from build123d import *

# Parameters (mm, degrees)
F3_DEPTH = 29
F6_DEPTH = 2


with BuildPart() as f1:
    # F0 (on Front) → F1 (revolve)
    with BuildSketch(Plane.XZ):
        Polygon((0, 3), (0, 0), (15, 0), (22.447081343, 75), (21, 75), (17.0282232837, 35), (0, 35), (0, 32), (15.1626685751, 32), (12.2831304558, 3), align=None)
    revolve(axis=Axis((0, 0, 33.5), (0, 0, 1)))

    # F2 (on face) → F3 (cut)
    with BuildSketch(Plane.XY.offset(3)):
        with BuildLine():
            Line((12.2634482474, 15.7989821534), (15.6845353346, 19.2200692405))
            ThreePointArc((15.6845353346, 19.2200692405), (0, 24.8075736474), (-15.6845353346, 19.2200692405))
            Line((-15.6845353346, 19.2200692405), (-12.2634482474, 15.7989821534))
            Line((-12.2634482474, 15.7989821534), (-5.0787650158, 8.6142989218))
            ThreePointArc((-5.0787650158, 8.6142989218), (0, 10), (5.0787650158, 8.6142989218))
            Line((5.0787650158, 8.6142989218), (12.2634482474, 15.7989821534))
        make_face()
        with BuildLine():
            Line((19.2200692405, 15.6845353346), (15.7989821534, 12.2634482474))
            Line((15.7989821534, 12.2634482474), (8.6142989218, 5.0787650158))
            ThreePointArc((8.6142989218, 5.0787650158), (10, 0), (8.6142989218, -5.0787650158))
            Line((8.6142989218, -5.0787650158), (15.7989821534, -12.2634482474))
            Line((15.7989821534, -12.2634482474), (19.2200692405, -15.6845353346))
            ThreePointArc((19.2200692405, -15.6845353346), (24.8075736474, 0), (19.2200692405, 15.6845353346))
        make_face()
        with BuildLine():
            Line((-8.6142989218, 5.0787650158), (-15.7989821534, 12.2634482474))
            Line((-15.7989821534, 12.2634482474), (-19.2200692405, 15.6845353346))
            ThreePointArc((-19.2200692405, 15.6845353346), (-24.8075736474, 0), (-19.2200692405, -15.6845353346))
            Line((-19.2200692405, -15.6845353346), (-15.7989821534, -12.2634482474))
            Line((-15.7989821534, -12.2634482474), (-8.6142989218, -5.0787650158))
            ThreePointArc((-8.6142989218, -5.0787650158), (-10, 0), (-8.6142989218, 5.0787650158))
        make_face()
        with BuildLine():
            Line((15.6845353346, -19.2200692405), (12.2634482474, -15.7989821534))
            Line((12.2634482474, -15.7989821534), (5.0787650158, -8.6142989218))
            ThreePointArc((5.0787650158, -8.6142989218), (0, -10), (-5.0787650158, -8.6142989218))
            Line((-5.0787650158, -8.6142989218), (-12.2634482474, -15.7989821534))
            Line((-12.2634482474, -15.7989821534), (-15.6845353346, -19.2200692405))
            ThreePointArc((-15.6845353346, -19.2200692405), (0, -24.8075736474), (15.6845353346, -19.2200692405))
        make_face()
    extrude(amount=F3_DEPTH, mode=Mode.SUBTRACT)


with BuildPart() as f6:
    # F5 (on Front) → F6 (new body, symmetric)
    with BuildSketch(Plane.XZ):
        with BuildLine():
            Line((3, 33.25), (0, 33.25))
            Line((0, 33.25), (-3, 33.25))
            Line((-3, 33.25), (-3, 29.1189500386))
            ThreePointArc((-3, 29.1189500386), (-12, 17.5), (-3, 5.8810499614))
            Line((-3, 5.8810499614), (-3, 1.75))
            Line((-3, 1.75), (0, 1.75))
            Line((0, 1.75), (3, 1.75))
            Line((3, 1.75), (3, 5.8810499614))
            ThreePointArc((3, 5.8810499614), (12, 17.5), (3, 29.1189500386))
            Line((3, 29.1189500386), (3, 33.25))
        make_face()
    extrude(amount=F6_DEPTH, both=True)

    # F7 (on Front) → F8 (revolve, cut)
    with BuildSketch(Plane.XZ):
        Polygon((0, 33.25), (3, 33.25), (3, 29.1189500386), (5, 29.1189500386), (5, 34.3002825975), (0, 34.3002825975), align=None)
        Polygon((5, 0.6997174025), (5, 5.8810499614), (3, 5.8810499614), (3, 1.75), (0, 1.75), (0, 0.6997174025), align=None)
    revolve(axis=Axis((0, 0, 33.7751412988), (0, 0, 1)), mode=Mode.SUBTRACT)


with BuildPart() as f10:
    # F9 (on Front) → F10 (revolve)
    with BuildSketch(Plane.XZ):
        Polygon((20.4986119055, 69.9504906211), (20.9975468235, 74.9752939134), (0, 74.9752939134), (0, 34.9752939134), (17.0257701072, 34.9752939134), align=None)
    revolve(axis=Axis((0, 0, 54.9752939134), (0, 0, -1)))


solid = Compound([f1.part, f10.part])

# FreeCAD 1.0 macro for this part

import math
import FreeCAD as App
import Part
import Sketcher
from FreeCAD import Vector


def add_polygon(sketch, points):
    """Adds a closed chain of lines whose ends are joined by coincident constraints."""
    first, n = sketch.GeometryCount, len(points)
    for a, b in zip(points, points[1:] + points[:1]):
        sketch.addGeometry(Part.LineSegment(App.Vector(*a, 0), App.Vector(*b, 0)), False)
    for i in range(n):
        sketch.addConstraint(Sketcher.Constraint("Coincident", first + i, 2, first + (i + 1) % n, 1))

doc = App.newDocument("Part")
body = doc.addObject("PartDesign::Body", "Body")

sketch1 = body.newObject("Sketcher::SketchObject", "Sketch")
sketch1.AttachmentSupport = (doc.getObject("XZ_Plane"), [""])
sketch1.MapMode = "FlatFace"
add_polygon(sketch1, [(0, 3), (0, 0), (15, 0), (22.447081, 75), (21, 75), (17.028223, 35), (0, 35), (0, 32), (15.162669, 32), (12.28313, 3)])
sketch1.addConstraint(Sketcher.Constraint("Vertical", 0))
sketch1.addConstraint(Sketcher.Constraint("Horizontal", 1))
sketch1.addConstraint(Sketcher.Constraint("Horizontal", 3))
sketch1.addConstraint(Sketcher.Constraint("Horizontal", 5))
sketch1.addConstraint(Sketcher.Constraint("Vertical", 6))
sketch1.addConstraint(Sketcher.Constraint("Horizontal", 7))
sketch1.addConstraint(Sketcher.Constraint("Horizontal", 9))
sketch1.addConstraint(Sketcher.Constraint("Coincident", 0, 2, -1, 1))
sketch1.addConstraint(Sketcher.Constraint("PointOnObject", 5, 2, -2))
sketch1.addConstraint(Sketcher.Constraint("Parallel", 2, 4))
sketch1.addConstraint(Sketcher.Constraint("Parallel", 4, 8))
sketch1.addConstraint(Sketcher.Constraint("Equal", 0, 6))
sketch1.addConstraint(Sketcher.Constraint("DistanceX", 1, 1, 1, 2, 15.0))
sketch1.addConstraint(Sketcher.Constraint("DistanceY", 0, 2, 0, 1, 3.0))
sketch1.addConstraint(Sketcher.Constraint("DistanceY", -1, 1, 2, 2, 75.0))
sketch1.addConstraint(Sketcher.Constraint("DistanceX", -1, 1, 3, 2, 21.0))
sketch1.addConstraint(Sketcher.Constraint("DistanceY", -1, 1, 4, 2, 35.0))
sketch1.addConstraint(Sketcher.Constraint("DistanceX", 3, 2, 3, 1, 1.447081))
sketch1.addConstraint(Sketcher.Constraint("DistanceX", 7, 1, 7, 2, 15.162669))
revolution = body.newObject("PartDesign::Revolution", "Revolution")
revolution.Profile = sketch1
revolution.ReferenceAxis = (sketch1, ["V_Axis"])
revolution.Angle = 360

sketch2 = body.newObject("Sketcher::SketchObject", "Sketch001")
sketch2.AttachmentSupport = (doc.getObject("XY_Plane"), [""])
sketch2.MapMode = "FlatFace"
sketch2.AttachmentOffset = App.Placement(Vector(0, 0, 3), App.Rotation())
sketch2.addGeometry(Part.LineSegment(Vector(12.263448, 15.798982, 0), Vector(15.684535, 19.220069, 0)), False)
sketch2.addGeometry(Part.ArcOfCircle(Part.Circle(Vector(0, 0, 0), Vector(0, 0, 1), 24.807574), math.radians(50.783839), math.radians(129.216161)), False)
sketch2.addGeometry(Part.LineSegment(Vector(-15.684535, 19.220069, 0), Vector(-12.263448, 15.798982, 0)), False)
sketch2.addGeometry(Part.LineSegment(Vector(-12.263448, 15.798982, 0), Vector(-5.078765, 8.614299, 0)), False)
sketch2.addGeometry(Part.ArcOfCircle(Part.Circle(Vector(0, 0, 0), Vector(0, 0, 1), 10), math.radians(59.477512), math.radians(120.522488)), False)
sketch2.addGeometry(Part.LineSegment(Vector(5.078765, 8.614299, 0), Vector(12.263448, 15.798982, 0)), False)
sketch2.addGeometry(Part.LineSegment(Vector(19.220069, 15.684535, 0), Vector(15.798982, 12.263448, 0)), False)
sketch2.addGeometry(Part.LineSegment(Vector(15.798982, 12.263448, 0), Vector(8.614299, 5.078765, 0)), False)
sketch2.addGeometry(Part.ArcOfCircle(Part.Circle(Vector(0, 0, 0), Vector(0, 0, 1), 10), math.radians(-30.522488), math.radians(30.522488)), False)
sketch2.addGeometry(Part.LineSegment(Vector(8.614299, -5.078765, 0), Vector(15.798982, -12.263448, 0)), False)
sketch2.addGeometry(Part.LineSegment(Vector(15.798982, -12.263448, 0), Vector(19.220069, -15.684535, 0)), False)
sketch2.addGeometry(Part.ArcOfCircle(Part.Circle(Vector(0, 0, 0), Vector(0, 0, 1), 24.807574), math.radians(-39.216161), math.radians(39.216161)), False)
sketch2.addGeometry(Part.LineSegment(Vector(-8.614299, 5.078765, 0), Vector(-15.798982, 12.263448, 0)), False)
sketch2.addGeometry(Part.LineSegment(Vector(-15.798982, 12.263448, 0), Vector(-19.220069, 15.684535, 0)), False)
sketch2.addGeometry(Part.ArcOfCircle(Part.Circle(Vector(0, 0, 0), Vector(0, 0, 1), 24.807574), math.radians(140.783839), math.radians(219.216161)), False)
sketch2.addGeometry(Part.LineSegment(Vector(-19.220069, -15.684535, 0), Vector(-15.798982, -12.263448, 0)), False)
sketch2.addGeometry(Part.LineSegment(Vector(-15.798982, -12.263448, 0), Vector(-8.614299, -5.078765, 0)), False)
sketch2.addGeometry(Part.ArcOfCircle(Part.Circle(Vector(0, 0, 0), Vector(0, 0, 1), 10), math.radians(149.477512), math.radians(210.522488)), False)
sketch2.addGeometry(Part.LineSegment(Vector(15.684535, -19.220069, 0), Vector(12.263448, -15.798982, 0)), False)
sketch2.addGeometry(Part.LineSegment(Vector(12.263448, -15.798982, 0), Vector(5.078765, -8.614299, 0)), False)
sketch2.addGeometry(Part.ArcOfCircle(Part.Circle(Vector(0, 0, 0), Vector(0, 0, 1), 10), math.radians(-120.522488), math.radians(-59.477512)), False)
sketch2.addGeometry(Part.LineSegment(Vector(-5.078765, -8.614299, 0), Vector(-12.263448, -15.798982, 0)), False)
sketch2.addGeometry(Part.LineSegment(Vector(-12.263448, -15.798982, 0), Vector(-15.684535, -19.220069, 0)), False)
sketch2.addGeometry(Part.ArcOfCircle(Part.Circle(Vector(0, 0, 0), Vector(0, 0, 1), 24.807574), math.radians(-129.216161), math.radians(-50.783839)), False)
sketch2.addConstraint(Sketcher.Constraint("Coincident", 0, 2, 1, 1))
sketch2.addConstraint(Sketcher.Constraint("Coincident", 1, 2, 2, 1))
sketch2.addConstraint(Sketcher.Constraint("Coincident", 2, 2, 3, 1))
sketch2.addConstraint(Sketcher.Constraint("Coincident", 3, 2, 4, 2))
sketch2.addConstraint(Sketcher.Constraint("Coincident", 4, 1, 5, 1))
sketch2.addConstraint(Sketcher.Constraint("Coincident", 5, 2, 0, 1))
sketch2.addConstraint(Sketcher.Constraint("Coincident", 6, 2, 7, 1))
sketch2.addConstraint(Sketcher.Constraint("Coincident", 7, 2, 8, 2))
sketch2.addConstraint(Sketcher.Constraint("Coincident", 8, 1, 9, 1))
sketch2.addConstraint(Sketcher.Constraint("Coincident", 9, 2, 10, 1))
sketch2.addConstraint(Sketcher.Constraint("Coincident", 10, 2, 11, 1))
sketch2.addConstraint(Sketcher.Constraint("Coincident", 11, 2, 6, 1))
sketch2.addConstraint(Sketcher.Constraint("Coincident", 12, 2, 13, 1))
sketch2.addConstraint(Sketcher.Constraint("Coincident", 13, 2, 14, 1))
sketch2.addConstraint(Sketcher.Constraint("Coincident", 14, 2, 15, 1))
sketch2.addConstraint(Sketcher.Constraint("Coincident", 15, 2, 16, 1))
sketch2.addConstraint(Sketcher.Constraint("Coincident", 16, 2, 17, 2))
sketch2.addConstraint(Sketcher.Constraint("Coincident", 17, 1, 12, 1))
sketch2.addConstraint(Sketcher.Constraint("Coincident", 18, 2, 19, 1))
sketch2.addConstraint(Sketcher.Constraint("Coincident", 19, 2, 20, 2))
sketch2.addConstraint(Sketcher.Constraint("Coincident", 20, 1, 21, 1))
sketch2.addConstraint(Sketcher.Constraint("Coincident", 21, 2, 22, 1))
sketch2.addConstraint(Sketcher.Constraint("Coincident", 22, 2, 23, 1))
sketch2.addConstraint(Sketcher.Constraint("Coincident", 23, 2, 18, 1))
sketch2.addConstraint(Sketcher.Constraint("Coincident", 1, 3, -1, 1))
sketch2.addConstraint(Sketcher.Constraint("Coincident", 4, 3, -1, 1))
sketch2.addConstraint(Sketcher.Constraint("Coincident", 8, 3, -1, 1))
sketch2.addConstraint(Sketcher.Constraint("Coincident", 11, 3, -1, 1))
sketch2.addConstraint(Sketcher.Constraint("Coincident", 14, 3, -1, 1))
sketch2.addConstraint(Sketcher.Constraint("Coincident", 17, 3, -1, 1))
sketch2.addConstraint(Sketcher.Constraint("Coincident", 20, 3, -1, 1))
sketch2.addConstraint(Sketcher.Constraint("Coincident", 23, 3, -1, 1))
sketch2.addConstraint(Sketcher.Constraint("Equal", 4, 8))
sketch2.addConstraint(Sketcher.Constraint("Equal", 1, 11))
sketch2.addConstraint(Sketcher.Constraint("Equal", 11, 14))
sketch2.addConstraint(Sketcher.Constraint("Equal", 8, 17))
sketch2.addConstraint(Sketcher.Constraint("Equal", 17, 20))
sketch2.addConstraint(Sketcher.Constraint("Equal", 14, 23))
sketch2.addConstraint(Sketcher.Constraint("Symmetric", 9, 2, 12, 2, -1, 1))
sketch2.addConstraint(Sketcher.Constraint("Symmetric", 6, 2, 15, 2, -1, 1))
sketch2.addConstraint(Sketcher.Constraint("Symmetric", 2, 2, 18, 2, -1, 1))
sketch2.addConstraint(Sketcher.Constraint("Symmetric", 5, 2, 21, 2, -1, 1))
sketch2.addConstraint(Sketcher.Constraint("Symmetric", 2, 2, 5, 2, -2))
sketch2.addConstraint(Sketcher.Constraint("Symmetric", 6, 2, 12, 2, -2))
sketch2.addConstraint(Sketcher.Constraint("Perpendicular", 0, 2))
sketch2.addConstraint(Sketcher.Constraint("Parallel", 2, 3))
sketch2.addConstraint(Sketcher.Constraint("Perpendicular", 3, 5))
sketch2.addConstraint(Sketcher.Constraint("Parallel", 5, 6))
sketch2.addConstraint(Sketcher.Constraint("Parallel", 6, 7))
sketch2.addConstraint(Sketcher.Constraint("Perpendicular", 7, 9))
sketch2.addConstraint(Sketcher.Constraint("Parallel", 9, 10))
sketch2.addConstraint(Sketcher.Constraint("Parallel", 10, 12))
sketch2.addConstraint(Sketcher.Constraint("Parallel", 12, 13))
sketch2.addConstraint(Sketcher.Constraint("Perpendicular", 13, 15))
sketch2.addConstraint(Sketcher.Constraint("Parallel", 15, 16))
sketch2.addConstraint(Sketcher.Constraint("Perpendicular", 16, 18))
sketch2.addConstraint(Sketcher.Constraint("Parallel", 18, 19))
sketch2.addConstraint(Sketcher.Constraint("Perpendicular", 19, 21))
sketch2.addConstraint(Sketcher.Constraint("Parallel", 21, 22))
sketch2.addConstraint(Sketcher.Constraint("Horizontal", 0, 2, 1, 2))
sketch2.addConstraint(Sketcher.Constraint("Equal", 2, 6))
sketch2.addConstraint(Sketcher.Constraint("Equal", 5, 7))
sketch2.addConstraint(Sketcher.Constraint("Radius", 4, 10.0))
sketch2.addConstraint(Sketcher.Constraint("Radius", 1, 24.807574))
sketch2.addConstraint(Sketcher.Constraint("DistanceY", -1, 1, 3, 2, 8.614299))
sketch2.addConstraint(Sketcher.Constraint("DistanceX", 2, 2, -1, 1, 12.263448))
pocket1 = body.newObject("PartDesign::Pocket", "Pocket")
pocket1.Profile = sketch2
pocket1.Length = 29
pocket1.Reversed = True
body2 = doc.addObject("PartDesign::Body", "Body001")

sketch3 = body2.newObject("Sketcher::SketchObject", "Sketch002")
sketch3.AttachmentSupport = (doc.getObject("XZ_Plane001"), [""])
sketch3.MapMode = "FlatFace"
sketch3.addGeometry(Part.LineSegment(Vector(3, 33.25, 0), Vector(-3, 33.25, 0)), False)
sketch3.addGeometry(Part.LineSegment(Vector(-3, 33.25, 0), Vector(-3, 29.11895, 0)), False)
sketch3.addGeometry(Part.ArcOfCircle(Part.Circle(Vector(0, 17.5, 0), Vector(0, 0, 1), 12), math.radians(104.477512), math.radians(255.522488)), False)
sketch3.addGeometry(Part.LineSegment(Vector(-3, 5.88105, 0), Vector(-3, 1.75, 0)), False)
sketch3.addGeometry(Part.LineSegment(Vector(-3, 1.75, 0), Vector(3, 1.75, 0)), False)
sketch3.addGeometry(Part.LineSegment(Vector(3, 1.75, 0), Vector(3, 5.88105, 0)), False)
sketch3.addGeometry(Part.ArcOfCircle(Part.Circle(Vector(0, 17.5, 0), Vector(0, 0, 1), 12), math.radians(-75.522488), math.radians(75.522488)), False)
sketch3.addGeometry(Part.LineSegment(Vector(3, 29.11895, 0), Vector(3, 33.25, 0)), False)
sketch3.addConstraint(Sketcher.Constraint("Coincident", 0, 2, 1, 1))
sketch3.addConstraint(Sketcher.Constraint("Coincident", 1, 2, 2, 1))
sketch3.addConstraint(Sketcher.Constraint("Coincident", 2, 2, 3, 1))
sketch3.addConstraint(Sketcher.Constraint("Coincident", 3, 2, 4, 1))
sketch3.addConstraint(Sketcher.Constraint("Coincident", 4, 2, 5, 1))
sketch3.addConstraint(Sketcher.Constraint("Coincident", 5, 2, 6, 1))
sketch3.addConstraint(Sketcher.Constraint("Coincident", 6, 2, 7, 1))
sketch3.addConstraint(Sketcher.Constraint("Coincident", 7, 2, 0, 1))
sketch3.addConstraint(Sketcher.Constraint("Horizontal", 0))
sketch3.addConstraint(Sketcher.Constraint("Vertical", 1))
sketch3.addConstraint(Sketcher.Constraint("Vertical", 3))
sketch3.addConstraint(Sketcher.Constraint("Horizontal", 4))
sketch3.addConstraint(Sketcher.Constraint("Vertical", 5))
sketch3.addConstraint(Sketcher.Constraint("Vertical", 7))
sketch3.addConstraint(Sketcher.Constraint("Coincident", 6, 3, 2, 3))
sketch3.addConstraint(Sketcher.Constraint("Equal", 2, 6))
sketch3.addConstraint(Sketcher.Constraint("Symmetric", 2, 2, 5, 2, -2))
sketch3.addConstraint(Sketcher.Constraint("Horizontal", 1, 2, 6, 2))
sketch3.addConstraint(Sketcher.Constraint("Vertical", 1, 2, 2, 2))
sketch3.addConstraint(Sketcher.Constraint("Equal", 1, 3))
sketch3.addConstraint(Sketcher.Constraint("Radius", 2, 12.0))
sketch3.addConstraint(Sketcher.Constraint("DistanceX", 0, 2, 0, 1, 6.0))
sketch3.addConstraint(Sketcher.Constraint("DistanceY", -1, 1, 2, 3, 17.5))
sketch3.addConstraint(Sketcher.Constraint("DistanceY", 3, 2, 0, 2, 31.5))
pad1 = body2.newObject("PartDesign::Pad", "Pad")
pad1.Profile = sketch3
pad1.Length = 4
pad1.Midplane = True

sketch4 = body2.newObject("Sketcher::SketchObject", "Sketch003")
sketch4.AttachmentSupport = (doc.getObject("XZ_Plane001"), [""])
sketch4.MapMode = "FlatFace"
add_polygon(sketch4, [(0, 33.25), (3, 33.25), (3, 29.11895), (5, 29.11895), (5, 34.300283), (0, 34.300283)])
add_polygon(sketch4, [(5, 0.699717), (5, 5.88105), (3, 5.88105), (3, 1.75), (0, 1.75), (0, 0.699717)])
sketch4.addConstraint(Sketcher.Constraint("Horizontal", 0))
sketch4.addConstraint(Sketcher.Constraint("Vertical", 1))
sketch4.addConstraint(Sketcher.Constraint("Horizontal", 2))
sketch4.addConstraint(Sketcher.Constraint("Vertical", 3))
sketch4.addConstraint(Sketcher.Constraint("Horizontal", 4))
sketch4.addConstraint(Sketcher.Constraint("Vertical", 5))
sketch4.addConstraint(Sketcher.Constraint("Vertical", 6))
sketch4.addConstraint(Sketcher.Constraint("Horizontal", 7))
sketch4.addConstraint(Sketcher.Constraint("Vertical", 8))
sketch4.addConstraint(Sketcher.Constraint("Horizontal", 9))
sketch4.addConstraint(Sketcher.Constraint("Vertical", 10))
sketch4.addConstraint(Sketcher.Constraint("Horizontal", 11))
sketch4.addConstraint(Sketcher.Constraint("PointOnObject", 4, 2, -2))
sketch4.addConstraint(Sketcher.Constraint("PointOnObject", 9, 2, -2))
sketch4.addConstraint(Sketcher.Constraint("Vertical", 3, 2, 6, 2))
sketch4.addConstraint(Sketcher.Constraint("Vertical", 1, 2, 7, 2))
sketch4.addConstraint(Sketcher.Constraint("Equal", 3, 6))
sketch4.addConstraint(Sketcher.Constraint("Equal", 1, 8))
sketch4.addConstraint(Sketcher.Constraint("DistanceX", 0, 1, 0, 2, 3.0))
sketch4.addConstraint(Sketcher.Constraint("DistanceX", 2, 1, 2, 2, 2.0))
sketch4.addConstraint(Sketcher.Constraint("DistanceY", 8, 2, 0, 2, 31.5))
sketch4.addConstraint(Sketcher.Constraint("DistanceY", -1, 1, 0, 2, 33.25))
sketch4.addConstraint(Sketcher.Constraint("DistanceY", 1, 2, 1, 1, 4.13105))
sketch4.addConstraint(Sketcher.Constraint("DistanceY", 3, 1, 3, 2, 5.181333))
groove = body2.newObject("PartDesign::Groove", "Groove")
groove.Profile = sketch4
groove.ReferenceAxis = (sketch4, ["V_Axis"])
groove.Angle = 360
body3 = doc.addObject("PartDesign::Body", "Body002")

sketch5 = body3.newObject("Sketcher::SketchObject", "Sketch004")
sketch5.AttachmentSupport = (doc.getObject("XZ_Plane002"), [""])
sketch5.MapMode = "FlatFace"
add_polygon(sketch5, [(20.498612, 69.950491), (20.997547, 74.975294), (0, 74.975294), (0, 34.975294), (17.02577, 34.975294)])
sketch5.addConstraint(Sketcher.Constraint("Horizontal", 1))
sketch5.addConstraint(Sketcher.Constraint("Vertical", 2))
sketch5.addConstraint(Sketcher.Constraint("Horizontal", 3))
sketch5.addConstraint(Sketcher.Constraint("PointOnObject", 1, 2, -2))
sketch5.addConstraint(Sketcher.Constraint("Parallel", 0, 4))
sketch5.addConstraint(Sketcher.Constraint("DistanceY", 2, 2, 2, 1, 40.0))
sketch5.addConstraint(Sketcher.Constraint("DistanceX", 3, 1, 3, 2, 17.02577))
sketch5.addConstraint(Sketcher.Constraint("Distance", 4, 35.147191))
sketch5.addConstraint(Sketcher.Constraint("DistanceX", 1, 2, 1, 1, 20.997547))
sketch5.addConstraint(Sketcher.Constraint("DistanceY", -1, 1, 4, 2, 69.950491))
revolution2 = body3.newObject("PartDesign::Revolution", "Revolution001")
revolution2.Profile = sketch5
revolution2.ReferenceAxis = (sketch5, ["V_Axis"])
revolution2.Angle = 360
body2.Visibility = False

doc.recompute()
